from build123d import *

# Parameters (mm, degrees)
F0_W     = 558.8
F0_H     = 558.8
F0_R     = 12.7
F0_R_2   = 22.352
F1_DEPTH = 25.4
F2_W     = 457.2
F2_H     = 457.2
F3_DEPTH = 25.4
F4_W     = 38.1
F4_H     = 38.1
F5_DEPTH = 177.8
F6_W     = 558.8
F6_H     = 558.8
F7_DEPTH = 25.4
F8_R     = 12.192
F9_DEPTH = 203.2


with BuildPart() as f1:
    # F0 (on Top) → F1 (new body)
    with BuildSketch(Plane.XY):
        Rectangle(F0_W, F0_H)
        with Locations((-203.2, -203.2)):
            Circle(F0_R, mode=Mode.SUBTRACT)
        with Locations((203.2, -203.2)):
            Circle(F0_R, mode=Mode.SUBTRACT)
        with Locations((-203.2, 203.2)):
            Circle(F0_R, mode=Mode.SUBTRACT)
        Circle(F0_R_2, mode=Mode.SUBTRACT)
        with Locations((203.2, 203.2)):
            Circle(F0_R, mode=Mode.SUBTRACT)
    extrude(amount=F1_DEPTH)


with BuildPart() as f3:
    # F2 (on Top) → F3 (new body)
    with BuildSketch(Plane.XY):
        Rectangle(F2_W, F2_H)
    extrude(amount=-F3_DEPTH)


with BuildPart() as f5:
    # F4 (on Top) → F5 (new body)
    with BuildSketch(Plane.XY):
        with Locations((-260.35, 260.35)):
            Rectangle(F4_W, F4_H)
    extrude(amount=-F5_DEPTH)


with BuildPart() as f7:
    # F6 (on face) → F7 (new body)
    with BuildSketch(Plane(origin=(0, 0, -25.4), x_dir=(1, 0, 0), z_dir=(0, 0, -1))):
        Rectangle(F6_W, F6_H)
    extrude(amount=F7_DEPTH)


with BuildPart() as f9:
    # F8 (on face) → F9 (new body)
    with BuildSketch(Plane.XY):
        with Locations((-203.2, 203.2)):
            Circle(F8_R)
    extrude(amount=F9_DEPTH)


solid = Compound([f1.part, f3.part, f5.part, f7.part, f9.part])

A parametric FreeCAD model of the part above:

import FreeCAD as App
import Part
import Sketcher
Q = App.Units.Quantity


def add_polygon(sketch, points):
    """Adds a closed chain of lines whose ends are joined by coincident constraints."""
    first, n = sketch.GeometryCount, len(points)
    for a, b in zip(points, points[1:] + points[:1]):
        sketch.addGeometry(Part.LineSegment(App.Vector(*a, 0), App.Vector(*b, 0)), False)
    for i in range(n):
        sketch.addConstraint(Sketcher.Constraint("Coincident", first + i, 2, first + (i + 1) % n, 1))

doc = App.newDocument("Part")
body = doc.addObject("PartDesign::Body", "Body")

# Sketch on XY plane
sketch1 = body.newObject("Sketcher::SketchObject", "Sketch")
sketch1.AttachmentSupport = (doc.getObject("XY_Plane"), [""])
sketch1.MapMode = "FlatFace"
add_polygon(sketch1, [(-279, 279), (-279, -279), (279, -279), (279, 279)])  # lines 0-3
sketch1.addGeometry(Part.Circle(App.Vector(-203, -203, 0), App.Vector(0, 0, 1), 13), False)  # 4
sketch1.addGeometry(Part.Circle(App.Vector(203, -203, 0), App.Vector(0, 0, 1), 13), False)  # 5
sketch1.addGeometry(Part.Circle(App.Vector(-203, 203, 0), App.Vector(0, 0, 1), 13), False)  # 6
sketch1.addGeometry(Part.Circle(App.Vector(0, 0, 0), App.Vector(0, 0, 1), 22), False)  # 7
sketch1.addGeometry(Part.Circle(App.Vector(203, 203, 0), App.Vector(0, 0, 1), 13), False)  # 8
sketch1.addConstraint(Sketcher.Constraint("Vertical", 0))
sketch1.addConstraint(Sketcher.Constraint("Horizontal", 1))
sketch1.addConstraint(Sketcher.Constraint("Vertical", 2))
sketch1.addConstraint(Sketcher.Constraint("Horizontal", 3))
sketch1.addConstraint(Sketcher.Constraint("Coincident", 7, 3, -1, 1))
sketch1.addConstraint(Sketcher.Constraint("Equal", 4, 5))
sketch1.addConstraint(Sketcher.Constraint("Equal", 5, 6))
sketch1.addConstraint(Sketcher.Constraint("Equal", 6, 8))
sketch1.addConstraint(Sketcher.Constraint("Symmetric", 5, 3, 6, 3, -1, 1))
sketch1.addConstraint(Sketcher.Constraint("Symmetric", 4, 3, 8, 3, -1, 1))
sketch1.addConstraint(Sketcher.Constraint("Symmetric", 0, 2, 2, 2, -1, 1))
sketch1.addConstraint(Sketcher.Constraint("Symmetric", 4, 3, 5, 3, -2))
sketch1.addConstraint(Sketcher.Constraint("Equal", 3, 0))
sketch1.addConstraint(Sketcher.Constraint("Diameter", 4, Q("1 in")))
sketch1.addConstraint(Sketcher.Constraint("Diameter", 7, Q("1.76 in")))
sketch1.addConstraint(Sketcher.Constraint("DistanceX", 1, 1, 1, 2, Q("22 in")))
sketch1.addConstraint(Sketcher.Constraint("DistanceX", 4, 3, -1, 1, Q("8 in")))
sketch1.addConstraint(Sketcher.Constraint("DistanceY", 4, 3, -1, 1, Q("8 in")))
pad1 = body.newObject("PartDesign::Pad", "Pad")
pad1.Profile = sketch1
pad1.Length = Q("1 in")
body2 = doc.addObject("PartDesign::Body", "Body001")

# Sketch on XY plane
sketch2 = body2.newObject("Sketcher::SketchObject", "Sketch001")
sketch2.AttachmentSupport = (doc.getObject("XY_Plane001"), [""])
sketch2.MapMode = "FlatFace"
add_polygon(sketch2, [(-229, 229), (-229, -229), (229, -229), (229, 229)])  # lines 0-3
sketch2.addConstraint(Sketcher.Constraint("Vertical", 0))
sketch2.addConstraint(Sketcher.Constraint("Horizontal", 1))
sketch2.addConstraint(Sketcher.Constraint("Vertical", 2))
sketch2.addConstraint(Sketcher.Constraint("Horizontal", 3))
sketch2.addConstraint(Sketcher.Constraint("Symmetric", 0, 2, 2, 2, -1, 1))
sketch2.addConstraint(Sketcher.Constraint("Equal", 3, 0))
sketch2.addConstraint(Sketcher.Constraint("DistanceX", 1, 1, 1, 2, Q("18 in")))
pad2 = body2.newObject("PartDesign::Pad", "Pad001")
pad2.Profile = sketch2
pad2.Length = Q("1 in")
pad2.Reversed = True
body3 = doc.addObject("PartDesign::Body", "Body002")

# Sketch on XY plane
sketch3 = body3.newObject("Sketcher::SketchObject", "Sketch002")
sketch3.AttachmentSupport = (doc.getObject("XY_Plane002"), [""])
sketch3.MapMode = "FlatFace"
add_polygon(sketch3, [(-279, 279), (-279, 241), (-241, 241), (-241, 279)])  # lines 0-3
sketch3.addConstraint(Sketcher.Constraint("Vertical", 0))
sketch3.addConstraint(Sketcher.Constraint("Horizontal", 1))
sketch3.addConstraint(Sketcher.Constraint("Vertical", 2))
sketch3.addConstraint(Sketcher.Constraint("Horizontal", 3))
sketch3.addConstraint(Sketcher.Constraint("Equal", 3, 0))
sketch3.addConstraint(Sketcher.Constraint("DistanceX", 1, 1, 1, 2, Q("1.5 in")))
sketch3.addConstraint(Sketcher.Constraint("DistanceX", 0, 2, -1, 1, Q("11 in")))
sketch3.addConstraint(Sketcher.Constraint("DistanceY", -1, 1, 2, 2, Q("11 in")))
pad3 = body3.newObject("PartDesign::Pad", "Pad002")
pad3.Profile = sketch3
pad3.Length = Q("7 in")
pad3.Reversed = True
body4 = doc.addObject("PartDesign::Body", "Body003")

# Sketch on XY plane
sketch4 = body4.newObject("Sketcher::SketchObject", "Sketch003")
sketch4.AttachmentSupport = (doc.getObject("XY_Plane003"), [""])
sketch4.MapMode = "FlatFace"
sketch4.AttachmentOffset = App.Placement(App.Vector(0, 0, -1 * 25.4), App.Rotation())
add_polygon(sketch4, [(-279, -279), (-279, 279), (279, 279), (279, -279)])  # lines 0-3
sketch4.addConstraint(Sketcher.Constraint("Vertical", 0))
sketch4.addConstraint(Sketcher.Constraint("Horizontal", 1))
sketch4.addConstraint(Sketcher.Constraint("Vertical", 2))
sketch4.addConstraint(Sketcher.Constraint("Horizontal", 3))
sketch4.addConstraint(Sketcher.Constraint("Symmetric", 0, 2, 2, 2, -1, 1))
sketch4.addConstraint(Sketcher.Constraint("Equal", 3, 0))
sketch4.addConstraint(Sketcher.Constraint("DistanceX", 1, 1, 1, 2, Q("22 in")))
pad4 = body4.newObject("PartDesign::Pad", "Pad003")
pad4.Profile = sketch4
pad4.Length = Q("1 in")
pad4.Reversed = True
body5 = doc.addObject("PartDesign::Body", "Body004")

# Sketch on XY plane
sketch5 = body5.newObject("Sketcher::SketchObject", "Sketch004")
sketch5.AttachmentSupport = (doc.getObject("XY_Plane004"), [""])
sketch5.MapMode = "FlatFace"
sketch5.addGeometry(Part.Circle(App.Vector(-203, 203, 0), App.Vector(0, 0, 1), 12), False)
sketch5.addConstraint(Sketcher.Constraint("Diameter", 0, Q("0.96 in")))
sketch5.addConstraint(Sketcher.Constraint("DistanceX", 0, 3, -1, 1, Q("8 in")))
sketch5.addConstraint(Sketcher.Constraint("DistanceY", -1, 1, 0, 3, Q("8 in")))
pad5 = body5.newObject("PartDesign::Pad", "Pad004")
pad5.Profile = sketch5
pad5.Length = Q("8 in")

doc.recompute()
